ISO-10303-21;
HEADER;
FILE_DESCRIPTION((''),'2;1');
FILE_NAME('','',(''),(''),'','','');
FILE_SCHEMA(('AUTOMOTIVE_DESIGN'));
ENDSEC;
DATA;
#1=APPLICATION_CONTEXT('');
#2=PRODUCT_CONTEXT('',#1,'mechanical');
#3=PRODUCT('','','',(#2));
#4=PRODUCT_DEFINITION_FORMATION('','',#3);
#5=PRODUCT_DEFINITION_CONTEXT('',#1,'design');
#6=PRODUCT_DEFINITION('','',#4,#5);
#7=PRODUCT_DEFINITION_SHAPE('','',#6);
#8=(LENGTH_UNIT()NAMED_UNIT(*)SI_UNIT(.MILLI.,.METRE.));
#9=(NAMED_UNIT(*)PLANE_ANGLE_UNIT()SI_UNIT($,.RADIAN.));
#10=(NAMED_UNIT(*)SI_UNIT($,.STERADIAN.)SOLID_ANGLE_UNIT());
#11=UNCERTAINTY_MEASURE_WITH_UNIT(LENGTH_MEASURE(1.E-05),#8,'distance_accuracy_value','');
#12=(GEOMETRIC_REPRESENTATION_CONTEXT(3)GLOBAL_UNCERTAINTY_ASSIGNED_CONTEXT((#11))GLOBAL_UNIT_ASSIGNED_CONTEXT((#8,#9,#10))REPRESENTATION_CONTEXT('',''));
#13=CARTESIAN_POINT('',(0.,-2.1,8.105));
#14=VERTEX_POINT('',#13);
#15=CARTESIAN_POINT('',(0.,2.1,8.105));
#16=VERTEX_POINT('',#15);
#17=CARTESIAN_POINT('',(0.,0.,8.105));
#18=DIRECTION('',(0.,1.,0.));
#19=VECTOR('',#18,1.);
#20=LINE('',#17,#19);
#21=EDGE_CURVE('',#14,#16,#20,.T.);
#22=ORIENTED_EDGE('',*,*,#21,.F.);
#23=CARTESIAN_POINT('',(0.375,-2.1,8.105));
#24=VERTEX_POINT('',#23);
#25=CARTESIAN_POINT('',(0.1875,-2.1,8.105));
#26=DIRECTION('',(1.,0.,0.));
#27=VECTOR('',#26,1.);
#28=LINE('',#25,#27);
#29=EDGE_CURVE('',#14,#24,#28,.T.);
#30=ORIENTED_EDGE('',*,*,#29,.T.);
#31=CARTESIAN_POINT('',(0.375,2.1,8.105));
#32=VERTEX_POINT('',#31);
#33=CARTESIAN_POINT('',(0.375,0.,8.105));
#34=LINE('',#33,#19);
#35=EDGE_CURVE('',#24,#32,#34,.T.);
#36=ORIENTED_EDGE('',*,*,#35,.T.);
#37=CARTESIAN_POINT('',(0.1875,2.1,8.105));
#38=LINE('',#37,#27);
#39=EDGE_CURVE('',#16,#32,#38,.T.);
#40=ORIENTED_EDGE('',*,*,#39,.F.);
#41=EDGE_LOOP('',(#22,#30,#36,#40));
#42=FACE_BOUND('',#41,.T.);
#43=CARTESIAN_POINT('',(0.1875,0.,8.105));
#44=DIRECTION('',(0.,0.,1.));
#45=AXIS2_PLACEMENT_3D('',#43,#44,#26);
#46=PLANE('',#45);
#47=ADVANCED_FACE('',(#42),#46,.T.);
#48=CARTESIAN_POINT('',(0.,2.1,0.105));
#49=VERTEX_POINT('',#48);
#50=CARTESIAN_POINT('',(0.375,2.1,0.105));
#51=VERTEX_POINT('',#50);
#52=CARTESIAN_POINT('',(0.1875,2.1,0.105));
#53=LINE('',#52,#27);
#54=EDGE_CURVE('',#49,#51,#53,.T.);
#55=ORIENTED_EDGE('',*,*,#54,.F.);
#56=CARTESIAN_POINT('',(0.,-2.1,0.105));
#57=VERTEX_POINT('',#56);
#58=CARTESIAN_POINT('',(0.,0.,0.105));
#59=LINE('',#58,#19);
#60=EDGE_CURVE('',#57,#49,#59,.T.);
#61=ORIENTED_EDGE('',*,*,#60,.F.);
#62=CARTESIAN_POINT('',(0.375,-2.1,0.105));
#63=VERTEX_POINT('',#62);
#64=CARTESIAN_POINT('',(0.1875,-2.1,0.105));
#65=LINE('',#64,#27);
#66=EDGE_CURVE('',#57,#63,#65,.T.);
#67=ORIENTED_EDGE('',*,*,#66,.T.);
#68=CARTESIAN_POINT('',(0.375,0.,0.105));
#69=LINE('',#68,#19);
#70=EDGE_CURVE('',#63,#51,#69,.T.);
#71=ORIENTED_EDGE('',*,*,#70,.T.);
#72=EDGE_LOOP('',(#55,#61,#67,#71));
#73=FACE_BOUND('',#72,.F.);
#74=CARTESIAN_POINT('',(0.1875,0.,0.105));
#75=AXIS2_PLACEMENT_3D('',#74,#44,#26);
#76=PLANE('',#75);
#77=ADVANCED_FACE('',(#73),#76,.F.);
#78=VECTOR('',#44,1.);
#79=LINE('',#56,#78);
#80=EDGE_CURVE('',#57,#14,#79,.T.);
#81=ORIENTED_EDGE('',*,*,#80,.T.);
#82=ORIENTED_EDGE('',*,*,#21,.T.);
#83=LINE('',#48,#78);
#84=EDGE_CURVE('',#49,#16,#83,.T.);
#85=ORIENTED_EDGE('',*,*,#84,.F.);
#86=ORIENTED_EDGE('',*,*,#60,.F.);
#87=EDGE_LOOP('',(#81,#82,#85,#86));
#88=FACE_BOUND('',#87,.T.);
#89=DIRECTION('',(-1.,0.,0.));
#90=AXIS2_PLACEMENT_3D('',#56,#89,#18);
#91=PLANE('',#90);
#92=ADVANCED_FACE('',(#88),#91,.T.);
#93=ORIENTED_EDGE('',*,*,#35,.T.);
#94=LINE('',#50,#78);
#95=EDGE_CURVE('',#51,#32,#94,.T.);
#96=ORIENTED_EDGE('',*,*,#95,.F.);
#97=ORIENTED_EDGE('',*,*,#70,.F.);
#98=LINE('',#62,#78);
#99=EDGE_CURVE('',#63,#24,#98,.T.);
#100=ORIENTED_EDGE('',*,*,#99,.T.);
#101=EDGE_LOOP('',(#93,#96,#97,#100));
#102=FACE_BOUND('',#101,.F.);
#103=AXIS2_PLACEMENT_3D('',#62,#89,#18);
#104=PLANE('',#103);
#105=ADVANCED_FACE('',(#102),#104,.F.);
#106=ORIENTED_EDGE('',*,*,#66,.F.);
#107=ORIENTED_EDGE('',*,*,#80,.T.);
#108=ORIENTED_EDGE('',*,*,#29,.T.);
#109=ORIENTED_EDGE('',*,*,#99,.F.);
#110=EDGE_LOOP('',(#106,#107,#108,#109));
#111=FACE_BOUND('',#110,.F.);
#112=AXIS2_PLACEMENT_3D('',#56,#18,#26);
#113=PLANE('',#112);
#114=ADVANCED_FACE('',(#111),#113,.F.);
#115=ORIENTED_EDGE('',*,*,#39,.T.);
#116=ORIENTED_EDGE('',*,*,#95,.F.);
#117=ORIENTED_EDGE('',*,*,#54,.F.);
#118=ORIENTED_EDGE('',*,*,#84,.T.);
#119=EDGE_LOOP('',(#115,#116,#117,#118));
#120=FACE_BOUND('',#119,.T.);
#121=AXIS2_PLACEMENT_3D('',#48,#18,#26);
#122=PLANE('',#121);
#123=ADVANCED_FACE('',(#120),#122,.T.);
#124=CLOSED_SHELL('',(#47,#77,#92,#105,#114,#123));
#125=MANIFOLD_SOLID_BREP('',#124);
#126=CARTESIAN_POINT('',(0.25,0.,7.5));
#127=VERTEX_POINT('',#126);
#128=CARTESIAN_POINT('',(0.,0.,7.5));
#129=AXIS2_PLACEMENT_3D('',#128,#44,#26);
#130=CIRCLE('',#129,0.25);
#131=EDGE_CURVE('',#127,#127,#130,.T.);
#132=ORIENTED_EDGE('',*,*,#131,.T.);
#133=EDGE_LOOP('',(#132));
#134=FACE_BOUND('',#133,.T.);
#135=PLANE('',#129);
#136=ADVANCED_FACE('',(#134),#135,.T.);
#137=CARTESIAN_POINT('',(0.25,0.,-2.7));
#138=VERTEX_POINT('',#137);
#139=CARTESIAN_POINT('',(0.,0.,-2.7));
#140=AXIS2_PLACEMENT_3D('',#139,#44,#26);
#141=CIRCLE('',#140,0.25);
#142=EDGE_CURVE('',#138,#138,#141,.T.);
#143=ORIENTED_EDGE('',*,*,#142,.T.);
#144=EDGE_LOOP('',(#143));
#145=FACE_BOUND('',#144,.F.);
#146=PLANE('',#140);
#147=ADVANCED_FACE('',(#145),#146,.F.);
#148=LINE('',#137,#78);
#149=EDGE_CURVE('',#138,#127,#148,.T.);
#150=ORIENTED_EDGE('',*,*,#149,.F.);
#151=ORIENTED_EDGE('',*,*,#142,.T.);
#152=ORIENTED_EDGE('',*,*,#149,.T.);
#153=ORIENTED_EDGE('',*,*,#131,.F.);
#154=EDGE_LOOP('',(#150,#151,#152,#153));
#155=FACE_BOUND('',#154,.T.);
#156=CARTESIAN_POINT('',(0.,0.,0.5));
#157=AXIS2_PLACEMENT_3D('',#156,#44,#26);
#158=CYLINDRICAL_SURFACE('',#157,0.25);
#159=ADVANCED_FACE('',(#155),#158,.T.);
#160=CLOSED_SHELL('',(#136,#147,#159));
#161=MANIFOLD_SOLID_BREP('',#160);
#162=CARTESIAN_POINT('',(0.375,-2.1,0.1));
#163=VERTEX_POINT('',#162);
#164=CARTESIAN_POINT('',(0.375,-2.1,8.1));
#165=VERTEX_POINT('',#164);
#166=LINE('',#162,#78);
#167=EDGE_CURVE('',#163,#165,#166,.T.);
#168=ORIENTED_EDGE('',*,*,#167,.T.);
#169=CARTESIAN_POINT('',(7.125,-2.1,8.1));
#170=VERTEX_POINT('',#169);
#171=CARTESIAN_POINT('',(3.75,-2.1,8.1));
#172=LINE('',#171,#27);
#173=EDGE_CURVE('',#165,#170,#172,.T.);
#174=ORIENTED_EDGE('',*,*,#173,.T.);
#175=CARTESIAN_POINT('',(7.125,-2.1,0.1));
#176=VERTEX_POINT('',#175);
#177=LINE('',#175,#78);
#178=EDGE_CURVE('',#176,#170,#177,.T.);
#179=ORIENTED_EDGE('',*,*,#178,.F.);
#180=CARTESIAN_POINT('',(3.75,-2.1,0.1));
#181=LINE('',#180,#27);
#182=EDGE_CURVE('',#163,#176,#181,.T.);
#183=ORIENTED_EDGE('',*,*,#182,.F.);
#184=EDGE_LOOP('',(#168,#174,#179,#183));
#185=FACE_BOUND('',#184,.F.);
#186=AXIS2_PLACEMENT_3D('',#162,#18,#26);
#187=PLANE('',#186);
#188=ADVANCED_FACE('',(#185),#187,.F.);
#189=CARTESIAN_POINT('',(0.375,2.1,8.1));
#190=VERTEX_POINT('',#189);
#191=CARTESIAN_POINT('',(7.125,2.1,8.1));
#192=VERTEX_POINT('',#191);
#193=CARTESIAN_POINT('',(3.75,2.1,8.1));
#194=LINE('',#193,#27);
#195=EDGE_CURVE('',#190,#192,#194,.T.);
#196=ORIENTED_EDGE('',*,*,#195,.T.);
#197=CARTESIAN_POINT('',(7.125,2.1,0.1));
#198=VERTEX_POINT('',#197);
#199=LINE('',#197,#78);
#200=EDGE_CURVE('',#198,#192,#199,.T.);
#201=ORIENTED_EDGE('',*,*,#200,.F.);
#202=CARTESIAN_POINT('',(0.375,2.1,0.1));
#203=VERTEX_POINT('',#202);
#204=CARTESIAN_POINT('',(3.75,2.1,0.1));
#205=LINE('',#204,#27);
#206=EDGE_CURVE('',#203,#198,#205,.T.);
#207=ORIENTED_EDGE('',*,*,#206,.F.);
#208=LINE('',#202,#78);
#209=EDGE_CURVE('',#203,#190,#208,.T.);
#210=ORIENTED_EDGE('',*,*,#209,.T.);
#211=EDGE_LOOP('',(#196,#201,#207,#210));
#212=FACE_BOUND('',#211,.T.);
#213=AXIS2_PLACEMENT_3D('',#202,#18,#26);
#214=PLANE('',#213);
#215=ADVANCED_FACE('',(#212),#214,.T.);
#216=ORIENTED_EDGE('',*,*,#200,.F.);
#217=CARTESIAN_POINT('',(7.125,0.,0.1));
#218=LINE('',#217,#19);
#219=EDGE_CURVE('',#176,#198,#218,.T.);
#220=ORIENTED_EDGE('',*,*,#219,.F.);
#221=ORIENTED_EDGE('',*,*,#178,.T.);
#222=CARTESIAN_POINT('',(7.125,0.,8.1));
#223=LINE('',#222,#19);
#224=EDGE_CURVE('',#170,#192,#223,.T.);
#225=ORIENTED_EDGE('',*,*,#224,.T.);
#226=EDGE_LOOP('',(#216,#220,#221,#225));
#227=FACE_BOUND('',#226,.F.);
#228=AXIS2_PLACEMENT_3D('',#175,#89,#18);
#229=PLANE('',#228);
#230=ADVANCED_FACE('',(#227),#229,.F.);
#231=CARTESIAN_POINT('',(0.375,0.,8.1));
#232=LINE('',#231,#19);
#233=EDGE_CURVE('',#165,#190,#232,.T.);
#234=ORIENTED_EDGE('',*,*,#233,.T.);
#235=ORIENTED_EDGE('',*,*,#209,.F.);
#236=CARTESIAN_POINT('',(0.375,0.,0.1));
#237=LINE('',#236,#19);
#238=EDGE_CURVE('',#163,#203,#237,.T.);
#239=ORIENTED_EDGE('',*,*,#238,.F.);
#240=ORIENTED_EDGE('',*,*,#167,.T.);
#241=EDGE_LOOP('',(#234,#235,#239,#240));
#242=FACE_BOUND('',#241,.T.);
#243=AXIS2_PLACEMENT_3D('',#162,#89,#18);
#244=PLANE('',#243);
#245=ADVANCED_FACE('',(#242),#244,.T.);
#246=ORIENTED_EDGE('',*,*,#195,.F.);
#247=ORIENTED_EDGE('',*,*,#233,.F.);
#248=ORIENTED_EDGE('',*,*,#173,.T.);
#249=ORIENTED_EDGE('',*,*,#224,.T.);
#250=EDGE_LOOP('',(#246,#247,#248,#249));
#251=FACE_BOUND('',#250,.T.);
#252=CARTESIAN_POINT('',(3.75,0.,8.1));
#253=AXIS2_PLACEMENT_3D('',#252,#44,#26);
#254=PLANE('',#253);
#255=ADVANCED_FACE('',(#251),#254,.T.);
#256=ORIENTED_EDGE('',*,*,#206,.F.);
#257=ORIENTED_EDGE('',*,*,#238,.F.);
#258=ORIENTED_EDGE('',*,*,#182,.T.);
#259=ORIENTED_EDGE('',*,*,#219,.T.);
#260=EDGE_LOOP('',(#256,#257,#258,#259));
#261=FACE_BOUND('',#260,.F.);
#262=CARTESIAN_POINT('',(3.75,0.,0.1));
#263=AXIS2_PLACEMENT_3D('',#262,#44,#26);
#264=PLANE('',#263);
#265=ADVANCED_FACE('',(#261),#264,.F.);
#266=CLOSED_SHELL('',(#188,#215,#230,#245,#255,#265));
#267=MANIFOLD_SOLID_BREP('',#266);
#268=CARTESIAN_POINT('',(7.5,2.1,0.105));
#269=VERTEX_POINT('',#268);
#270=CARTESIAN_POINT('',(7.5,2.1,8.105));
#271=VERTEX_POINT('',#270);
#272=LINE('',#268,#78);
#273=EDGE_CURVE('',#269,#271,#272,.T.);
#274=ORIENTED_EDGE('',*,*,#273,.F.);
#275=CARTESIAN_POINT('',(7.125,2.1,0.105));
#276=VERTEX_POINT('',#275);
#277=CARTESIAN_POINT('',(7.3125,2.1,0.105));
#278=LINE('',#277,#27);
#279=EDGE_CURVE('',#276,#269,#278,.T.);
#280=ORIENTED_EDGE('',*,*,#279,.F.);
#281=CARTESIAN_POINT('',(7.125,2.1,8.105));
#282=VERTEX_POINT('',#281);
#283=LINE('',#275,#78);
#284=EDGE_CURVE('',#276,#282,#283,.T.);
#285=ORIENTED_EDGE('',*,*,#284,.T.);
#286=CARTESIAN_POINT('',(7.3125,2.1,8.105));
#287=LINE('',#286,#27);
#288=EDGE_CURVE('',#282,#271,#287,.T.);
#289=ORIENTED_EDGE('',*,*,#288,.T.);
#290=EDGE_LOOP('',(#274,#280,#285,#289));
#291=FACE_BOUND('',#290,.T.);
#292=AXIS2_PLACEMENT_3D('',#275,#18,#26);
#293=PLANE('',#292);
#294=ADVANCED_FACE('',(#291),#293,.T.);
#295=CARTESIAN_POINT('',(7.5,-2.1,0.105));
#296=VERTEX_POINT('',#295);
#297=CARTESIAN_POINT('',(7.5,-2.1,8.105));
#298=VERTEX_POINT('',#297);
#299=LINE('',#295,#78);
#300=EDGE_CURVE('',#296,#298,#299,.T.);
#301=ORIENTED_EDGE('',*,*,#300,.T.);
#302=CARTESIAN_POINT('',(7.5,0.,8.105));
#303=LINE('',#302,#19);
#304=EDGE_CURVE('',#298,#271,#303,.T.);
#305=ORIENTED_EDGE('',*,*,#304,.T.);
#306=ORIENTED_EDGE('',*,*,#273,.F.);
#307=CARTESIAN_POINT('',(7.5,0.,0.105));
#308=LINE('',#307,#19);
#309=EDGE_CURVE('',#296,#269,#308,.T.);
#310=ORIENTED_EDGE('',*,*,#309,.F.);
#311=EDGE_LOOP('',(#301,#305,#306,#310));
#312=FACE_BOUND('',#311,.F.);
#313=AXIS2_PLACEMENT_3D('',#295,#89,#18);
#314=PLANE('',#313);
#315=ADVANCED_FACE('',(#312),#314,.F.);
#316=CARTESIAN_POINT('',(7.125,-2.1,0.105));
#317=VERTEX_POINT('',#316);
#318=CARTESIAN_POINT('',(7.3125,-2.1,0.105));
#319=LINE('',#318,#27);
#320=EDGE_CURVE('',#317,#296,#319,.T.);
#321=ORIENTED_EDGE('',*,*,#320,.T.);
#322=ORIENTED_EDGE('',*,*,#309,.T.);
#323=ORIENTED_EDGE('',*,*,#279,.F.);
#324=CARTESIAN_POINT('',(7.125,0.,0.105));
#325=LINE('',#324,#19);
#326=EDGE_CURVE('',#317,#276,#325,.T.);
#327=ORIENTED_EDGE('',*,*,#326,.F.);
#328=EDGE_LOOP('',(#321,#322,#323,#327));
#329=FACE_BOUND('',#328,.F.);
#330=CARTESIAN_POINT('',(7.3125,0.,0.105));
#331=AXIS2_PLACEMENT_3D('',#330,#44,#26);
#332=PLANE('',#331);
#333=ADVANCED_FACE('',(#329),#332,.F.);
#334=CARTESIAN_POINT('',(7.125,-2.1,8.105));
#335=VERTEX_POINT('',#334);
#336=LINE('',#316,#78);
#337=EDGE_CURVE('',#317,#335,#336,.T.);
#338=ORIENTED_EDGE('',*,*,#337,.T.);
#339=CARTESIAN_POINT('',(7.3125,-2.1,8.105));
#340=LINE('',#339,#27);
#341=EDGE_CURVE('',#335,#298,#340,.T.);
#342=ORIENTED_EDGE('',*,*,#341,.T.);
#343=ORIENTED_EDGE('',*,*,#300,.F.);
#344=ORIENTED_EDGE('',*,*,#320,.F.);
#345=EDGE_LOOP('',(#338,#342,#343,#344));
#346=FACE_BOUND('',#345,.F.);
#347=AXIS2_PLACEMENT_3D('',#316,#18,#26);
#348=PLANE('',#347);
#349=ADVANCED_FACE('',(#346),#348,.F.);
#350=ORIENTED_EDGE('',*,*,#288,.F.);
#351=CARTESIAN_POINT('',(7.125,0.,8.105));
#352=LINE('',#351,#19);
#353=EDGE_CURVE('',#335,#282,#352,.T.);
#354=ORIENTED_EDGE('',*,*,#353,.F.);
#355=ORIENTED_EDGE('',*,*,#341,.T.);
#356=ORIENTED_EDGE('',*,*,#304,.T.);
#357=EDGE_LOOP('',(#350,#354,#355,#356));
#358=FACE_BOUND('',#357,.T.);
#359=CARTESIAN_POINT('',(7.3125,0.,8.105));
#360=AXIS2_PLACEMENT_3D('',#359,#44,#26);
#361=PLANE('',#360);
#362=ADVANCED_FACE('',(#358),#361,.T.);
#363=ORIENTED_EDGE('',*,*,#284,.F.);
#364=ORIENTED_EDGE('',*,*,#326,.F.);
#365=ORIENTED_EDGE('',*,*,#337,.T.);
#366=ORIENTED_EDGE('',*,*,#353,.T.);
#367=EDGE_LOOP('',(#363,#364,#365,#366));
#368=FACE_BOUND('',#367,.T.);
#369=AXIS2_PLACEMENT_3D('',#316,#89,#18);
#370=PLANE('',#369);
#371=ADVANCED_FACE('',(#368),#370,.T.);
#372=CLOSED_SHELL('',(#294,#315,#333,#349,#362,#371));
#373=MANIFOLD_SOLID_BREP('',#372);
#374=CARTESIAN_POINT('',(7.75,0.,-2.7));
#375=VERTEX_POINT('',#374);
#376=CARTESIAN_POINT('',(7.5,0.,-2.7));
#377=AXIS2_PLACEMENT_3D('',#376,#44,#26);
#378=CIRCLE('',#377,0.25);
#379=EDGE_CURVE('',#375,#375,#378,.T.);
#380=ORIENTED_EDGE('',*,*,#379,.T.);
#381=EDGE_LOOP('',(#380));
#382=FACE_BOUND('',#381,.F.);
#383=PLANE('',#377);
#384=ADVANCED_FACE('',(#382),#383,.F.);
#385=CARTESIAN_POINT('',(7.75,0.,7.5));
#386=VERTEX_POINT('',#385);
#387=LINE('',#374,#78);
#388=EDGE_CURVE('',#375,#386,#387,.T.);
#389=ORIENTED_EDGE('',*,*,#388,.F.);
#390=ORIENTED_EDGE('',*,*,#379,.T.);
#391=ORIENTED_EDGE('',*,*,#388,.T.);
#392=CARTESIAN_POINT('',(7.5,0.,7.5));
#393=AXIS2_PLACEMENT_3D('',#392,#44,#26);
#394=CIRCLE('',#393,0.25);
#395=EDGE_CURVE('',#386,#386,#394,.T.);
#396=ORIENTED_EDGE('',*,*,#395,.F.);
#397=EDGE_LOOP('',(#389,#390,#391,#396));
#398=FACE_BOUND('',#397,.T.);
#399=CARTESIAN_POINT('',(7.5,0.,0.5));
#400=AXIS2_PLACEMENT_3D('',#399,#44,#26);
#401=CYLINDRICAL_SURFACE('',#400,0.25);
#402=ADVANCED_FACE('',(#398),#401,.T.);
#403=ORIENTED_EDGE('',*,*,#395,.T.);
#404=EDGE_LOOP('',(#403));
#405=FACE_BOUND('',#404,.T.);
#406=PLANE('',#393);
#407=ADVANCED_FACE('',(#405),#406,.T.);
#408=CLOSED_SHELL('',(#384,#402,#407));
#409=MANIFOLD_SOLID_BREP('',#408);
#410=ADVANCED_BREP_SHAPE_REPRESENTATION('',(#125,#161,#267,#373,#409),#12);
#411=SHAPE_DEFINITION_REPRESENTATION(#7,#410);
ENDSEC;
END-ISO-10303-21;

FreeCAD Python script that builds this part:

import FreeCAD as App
import Part
import Sketcher
from FreeCAD import Vector
Q = App.Units.Quantity


def add_polygon(sketch, points):
    """Adds a closed chain of lines whose ends are joined by coincident constraints."""
    first, n = sketch.GeometryCount, len(points)
    for a, b in zip(points, points[1:] + points[:1]):
        sketch.addGeometry(Part.LineSegment(App.Vector(*a, 0), App.Vector(*b, 0)), False)
    for i in range(n):
        sketch.addConstraint(Sketcher.Constraint("Coincident", first + i, 2, first + (i + 1) % n, 1))

doc = App.newDocument("Part")
body = doc.addObject("PartDesign::Body", "Body")

# Sketch on XY plane
sketch1 = body.newObject("Sketcher::SketchObject", "Sketch")
sketch1.AttachmentSupport = (doc.getObject("XY_Plane"), [""])
sketch1.MapMode = "FlatFace"
sketch1.AttachmentOffset = App.Placement(Vector(0, 0, 0.1), App.Rotation())
add_polygon(sketch1, [(0.4, 2.1), (0.4, -2.1), (7.1, -2.1), (7.1, 2.1)])  # lines 0-3
sketch1.addConstraint(Sketcher.Constraint("Vertical", 0))
sketch1.addConstraint(Sketcher.Constraint("Horizontal", 1))
sketch1.addConstraint(Sketcher.Constraint("Vertical", 2))
sketch1.addConstraint(Sketcher.Constraint("Horizontal", 3))
sketch1.addConstraint(Sketcher.Constraint("DistanceY", 0, 2, 0, 1, Q("4.2 mm")))
sketch1.addConstraint(Sketcher.Constraint("DistanceX", 1, 1, 1, 2, Q("6.75 mm")))
sketch1.addConstraint(Sketcher.Constraint("DistanceY", 0, 2, -1, 1, Q("2.1 mm")))
sketch1.addConstraint(Sketcher.Constraint("DistanceX", -1, 1, 0, 2, Q("0.375 mm")))
pad1 = body.newObject("PartDesign::Pad", "Pad")
pad1.Profile = sketch1
pad1.Length = 8
body2 = doc.addObject("PartDesign::Body", "Body001")
body2.AllowCompound = True

# Sketch on XY plane
sketch2 = body2.newObject("Sketcher::SketchObject", "Sketch001")
sketch2.AttachmentSupport = (doc.getObject("XY_Plane001"), [""])
sketch2.MapMode = "FlatFace"
sketch2.AttachmentOffset = App.Placement(Vector(0, 0, 0.5), App.Rotation())
sketch2.addGeometry(Part.Circle(Vector(0, 0, 0), Vector(0, 0, 1), 0.25), False)
sketch2.addGeometry(Part.Circle(Vector(7.5, 0, 0), Vector(0, 0, 1), 0.25), False)
sketch2.addConstraint(Sketcher.Constraint("Coincident", 0, 3, -1, 1))
sketch2.addConstraint(Sketcher.Constraint("Equal", 0, 1))
sketch2.addConstraint(Sketcher.Constraint("PointOnObject", 1, 3, -1))
sketch2.addConstraint(Sketcher.Constraint("Diameter", 0, Q("0.5 mm")))
sketch2.addConstraint(Sketcher.Constraint("DistanceX", -1, 1, 1, 3, Q("7.5 mm")))
pad2 = body2.newObject("PartDesign::Pad", "Pad001")
pad2.Profile = sketch2
pad2.Type = "TwoLengths"
pad2.Length = 7
pad2.Length2 = 3.2
body3 = doc.addObject("PartDesign::Body", "Body002")
body3.AllowCompound = True

# Sketch on XY plane
sketch3 = body3.newObject("Sketcher::SketchObject", "Sketch002")
sketch3.AttachmentSupport = (doc.getObject("XY_Plane002"), [""])
sketch3.MapMode = "FlatFace"
sketch3.AttachmentOffset = App.Placement(Vector(0, 0, 0.105), App.Rotation())
add_polygon(sketch3, [(0, 2.1), (0, -2.1), (0.38, -2.1), (0.38, 2.1)])  # lines 0-3
add_polygon(sketch3, [(7.12, 2.1), (7.12, -2.1), (7.5, -2.1), (7.5, 2.1)])  # lines 4-7
sketch3.addConstraint(Sketcher.Constraint("Vertical", 0))
sketch3.addConstraint(Sketcher.Constraint("Horizontal", 1))
sketch3.addConstraint(Sketcher.Constraint("Vertical", 2))
sketch3.addConstraint(Sketcher.Constraint("Horizontal", 3))
sketch3.addConstraint(Sketcher.Constraint("Vertical", 4))
sketch3.addConstraint(Sketcher.Constraint("Horizontal", 5))
sketch3.addConstraint(Sketcher.Constraint("Vertical", 6))
sketch3.addConstraint(Sketcher.Constraint("Horizontal", 7))
sketch3.addConstraint(Sketcher.Constraint("Symmetric", 0, 2, 3, 2, -1, 1))
sketch3.addConstraint(Sketcher.Constraint("Horizontal", 1, 2, 4, 2))
sketch3.addConstraint(Sketcher.Constraint("Horizontal", 3, 2, 6, 2))
sketch3.addConstraint(Sketcher.Constraint("Equal", 3, 5))
sketch3.addConstraint(Sketcher.Constraint("DistanceY", 0, 2, 0, 1, Q("4.2 mm")))
sketch3.addConstraint(Sketcher.Constraint("DistanceX", -1, 1, 5, 2, Q("7.5 mm")))
sketch3.addConstraint(Sketcher.Constraint("DistanceX", 1, 1, 1, 2, Q("0.375 mm")))
pad3 = body3.newObject("PartDesign::Pad", "Pad002")
pad3.Profile = sketch3
pad3.Length = 8

doc.recompute()
